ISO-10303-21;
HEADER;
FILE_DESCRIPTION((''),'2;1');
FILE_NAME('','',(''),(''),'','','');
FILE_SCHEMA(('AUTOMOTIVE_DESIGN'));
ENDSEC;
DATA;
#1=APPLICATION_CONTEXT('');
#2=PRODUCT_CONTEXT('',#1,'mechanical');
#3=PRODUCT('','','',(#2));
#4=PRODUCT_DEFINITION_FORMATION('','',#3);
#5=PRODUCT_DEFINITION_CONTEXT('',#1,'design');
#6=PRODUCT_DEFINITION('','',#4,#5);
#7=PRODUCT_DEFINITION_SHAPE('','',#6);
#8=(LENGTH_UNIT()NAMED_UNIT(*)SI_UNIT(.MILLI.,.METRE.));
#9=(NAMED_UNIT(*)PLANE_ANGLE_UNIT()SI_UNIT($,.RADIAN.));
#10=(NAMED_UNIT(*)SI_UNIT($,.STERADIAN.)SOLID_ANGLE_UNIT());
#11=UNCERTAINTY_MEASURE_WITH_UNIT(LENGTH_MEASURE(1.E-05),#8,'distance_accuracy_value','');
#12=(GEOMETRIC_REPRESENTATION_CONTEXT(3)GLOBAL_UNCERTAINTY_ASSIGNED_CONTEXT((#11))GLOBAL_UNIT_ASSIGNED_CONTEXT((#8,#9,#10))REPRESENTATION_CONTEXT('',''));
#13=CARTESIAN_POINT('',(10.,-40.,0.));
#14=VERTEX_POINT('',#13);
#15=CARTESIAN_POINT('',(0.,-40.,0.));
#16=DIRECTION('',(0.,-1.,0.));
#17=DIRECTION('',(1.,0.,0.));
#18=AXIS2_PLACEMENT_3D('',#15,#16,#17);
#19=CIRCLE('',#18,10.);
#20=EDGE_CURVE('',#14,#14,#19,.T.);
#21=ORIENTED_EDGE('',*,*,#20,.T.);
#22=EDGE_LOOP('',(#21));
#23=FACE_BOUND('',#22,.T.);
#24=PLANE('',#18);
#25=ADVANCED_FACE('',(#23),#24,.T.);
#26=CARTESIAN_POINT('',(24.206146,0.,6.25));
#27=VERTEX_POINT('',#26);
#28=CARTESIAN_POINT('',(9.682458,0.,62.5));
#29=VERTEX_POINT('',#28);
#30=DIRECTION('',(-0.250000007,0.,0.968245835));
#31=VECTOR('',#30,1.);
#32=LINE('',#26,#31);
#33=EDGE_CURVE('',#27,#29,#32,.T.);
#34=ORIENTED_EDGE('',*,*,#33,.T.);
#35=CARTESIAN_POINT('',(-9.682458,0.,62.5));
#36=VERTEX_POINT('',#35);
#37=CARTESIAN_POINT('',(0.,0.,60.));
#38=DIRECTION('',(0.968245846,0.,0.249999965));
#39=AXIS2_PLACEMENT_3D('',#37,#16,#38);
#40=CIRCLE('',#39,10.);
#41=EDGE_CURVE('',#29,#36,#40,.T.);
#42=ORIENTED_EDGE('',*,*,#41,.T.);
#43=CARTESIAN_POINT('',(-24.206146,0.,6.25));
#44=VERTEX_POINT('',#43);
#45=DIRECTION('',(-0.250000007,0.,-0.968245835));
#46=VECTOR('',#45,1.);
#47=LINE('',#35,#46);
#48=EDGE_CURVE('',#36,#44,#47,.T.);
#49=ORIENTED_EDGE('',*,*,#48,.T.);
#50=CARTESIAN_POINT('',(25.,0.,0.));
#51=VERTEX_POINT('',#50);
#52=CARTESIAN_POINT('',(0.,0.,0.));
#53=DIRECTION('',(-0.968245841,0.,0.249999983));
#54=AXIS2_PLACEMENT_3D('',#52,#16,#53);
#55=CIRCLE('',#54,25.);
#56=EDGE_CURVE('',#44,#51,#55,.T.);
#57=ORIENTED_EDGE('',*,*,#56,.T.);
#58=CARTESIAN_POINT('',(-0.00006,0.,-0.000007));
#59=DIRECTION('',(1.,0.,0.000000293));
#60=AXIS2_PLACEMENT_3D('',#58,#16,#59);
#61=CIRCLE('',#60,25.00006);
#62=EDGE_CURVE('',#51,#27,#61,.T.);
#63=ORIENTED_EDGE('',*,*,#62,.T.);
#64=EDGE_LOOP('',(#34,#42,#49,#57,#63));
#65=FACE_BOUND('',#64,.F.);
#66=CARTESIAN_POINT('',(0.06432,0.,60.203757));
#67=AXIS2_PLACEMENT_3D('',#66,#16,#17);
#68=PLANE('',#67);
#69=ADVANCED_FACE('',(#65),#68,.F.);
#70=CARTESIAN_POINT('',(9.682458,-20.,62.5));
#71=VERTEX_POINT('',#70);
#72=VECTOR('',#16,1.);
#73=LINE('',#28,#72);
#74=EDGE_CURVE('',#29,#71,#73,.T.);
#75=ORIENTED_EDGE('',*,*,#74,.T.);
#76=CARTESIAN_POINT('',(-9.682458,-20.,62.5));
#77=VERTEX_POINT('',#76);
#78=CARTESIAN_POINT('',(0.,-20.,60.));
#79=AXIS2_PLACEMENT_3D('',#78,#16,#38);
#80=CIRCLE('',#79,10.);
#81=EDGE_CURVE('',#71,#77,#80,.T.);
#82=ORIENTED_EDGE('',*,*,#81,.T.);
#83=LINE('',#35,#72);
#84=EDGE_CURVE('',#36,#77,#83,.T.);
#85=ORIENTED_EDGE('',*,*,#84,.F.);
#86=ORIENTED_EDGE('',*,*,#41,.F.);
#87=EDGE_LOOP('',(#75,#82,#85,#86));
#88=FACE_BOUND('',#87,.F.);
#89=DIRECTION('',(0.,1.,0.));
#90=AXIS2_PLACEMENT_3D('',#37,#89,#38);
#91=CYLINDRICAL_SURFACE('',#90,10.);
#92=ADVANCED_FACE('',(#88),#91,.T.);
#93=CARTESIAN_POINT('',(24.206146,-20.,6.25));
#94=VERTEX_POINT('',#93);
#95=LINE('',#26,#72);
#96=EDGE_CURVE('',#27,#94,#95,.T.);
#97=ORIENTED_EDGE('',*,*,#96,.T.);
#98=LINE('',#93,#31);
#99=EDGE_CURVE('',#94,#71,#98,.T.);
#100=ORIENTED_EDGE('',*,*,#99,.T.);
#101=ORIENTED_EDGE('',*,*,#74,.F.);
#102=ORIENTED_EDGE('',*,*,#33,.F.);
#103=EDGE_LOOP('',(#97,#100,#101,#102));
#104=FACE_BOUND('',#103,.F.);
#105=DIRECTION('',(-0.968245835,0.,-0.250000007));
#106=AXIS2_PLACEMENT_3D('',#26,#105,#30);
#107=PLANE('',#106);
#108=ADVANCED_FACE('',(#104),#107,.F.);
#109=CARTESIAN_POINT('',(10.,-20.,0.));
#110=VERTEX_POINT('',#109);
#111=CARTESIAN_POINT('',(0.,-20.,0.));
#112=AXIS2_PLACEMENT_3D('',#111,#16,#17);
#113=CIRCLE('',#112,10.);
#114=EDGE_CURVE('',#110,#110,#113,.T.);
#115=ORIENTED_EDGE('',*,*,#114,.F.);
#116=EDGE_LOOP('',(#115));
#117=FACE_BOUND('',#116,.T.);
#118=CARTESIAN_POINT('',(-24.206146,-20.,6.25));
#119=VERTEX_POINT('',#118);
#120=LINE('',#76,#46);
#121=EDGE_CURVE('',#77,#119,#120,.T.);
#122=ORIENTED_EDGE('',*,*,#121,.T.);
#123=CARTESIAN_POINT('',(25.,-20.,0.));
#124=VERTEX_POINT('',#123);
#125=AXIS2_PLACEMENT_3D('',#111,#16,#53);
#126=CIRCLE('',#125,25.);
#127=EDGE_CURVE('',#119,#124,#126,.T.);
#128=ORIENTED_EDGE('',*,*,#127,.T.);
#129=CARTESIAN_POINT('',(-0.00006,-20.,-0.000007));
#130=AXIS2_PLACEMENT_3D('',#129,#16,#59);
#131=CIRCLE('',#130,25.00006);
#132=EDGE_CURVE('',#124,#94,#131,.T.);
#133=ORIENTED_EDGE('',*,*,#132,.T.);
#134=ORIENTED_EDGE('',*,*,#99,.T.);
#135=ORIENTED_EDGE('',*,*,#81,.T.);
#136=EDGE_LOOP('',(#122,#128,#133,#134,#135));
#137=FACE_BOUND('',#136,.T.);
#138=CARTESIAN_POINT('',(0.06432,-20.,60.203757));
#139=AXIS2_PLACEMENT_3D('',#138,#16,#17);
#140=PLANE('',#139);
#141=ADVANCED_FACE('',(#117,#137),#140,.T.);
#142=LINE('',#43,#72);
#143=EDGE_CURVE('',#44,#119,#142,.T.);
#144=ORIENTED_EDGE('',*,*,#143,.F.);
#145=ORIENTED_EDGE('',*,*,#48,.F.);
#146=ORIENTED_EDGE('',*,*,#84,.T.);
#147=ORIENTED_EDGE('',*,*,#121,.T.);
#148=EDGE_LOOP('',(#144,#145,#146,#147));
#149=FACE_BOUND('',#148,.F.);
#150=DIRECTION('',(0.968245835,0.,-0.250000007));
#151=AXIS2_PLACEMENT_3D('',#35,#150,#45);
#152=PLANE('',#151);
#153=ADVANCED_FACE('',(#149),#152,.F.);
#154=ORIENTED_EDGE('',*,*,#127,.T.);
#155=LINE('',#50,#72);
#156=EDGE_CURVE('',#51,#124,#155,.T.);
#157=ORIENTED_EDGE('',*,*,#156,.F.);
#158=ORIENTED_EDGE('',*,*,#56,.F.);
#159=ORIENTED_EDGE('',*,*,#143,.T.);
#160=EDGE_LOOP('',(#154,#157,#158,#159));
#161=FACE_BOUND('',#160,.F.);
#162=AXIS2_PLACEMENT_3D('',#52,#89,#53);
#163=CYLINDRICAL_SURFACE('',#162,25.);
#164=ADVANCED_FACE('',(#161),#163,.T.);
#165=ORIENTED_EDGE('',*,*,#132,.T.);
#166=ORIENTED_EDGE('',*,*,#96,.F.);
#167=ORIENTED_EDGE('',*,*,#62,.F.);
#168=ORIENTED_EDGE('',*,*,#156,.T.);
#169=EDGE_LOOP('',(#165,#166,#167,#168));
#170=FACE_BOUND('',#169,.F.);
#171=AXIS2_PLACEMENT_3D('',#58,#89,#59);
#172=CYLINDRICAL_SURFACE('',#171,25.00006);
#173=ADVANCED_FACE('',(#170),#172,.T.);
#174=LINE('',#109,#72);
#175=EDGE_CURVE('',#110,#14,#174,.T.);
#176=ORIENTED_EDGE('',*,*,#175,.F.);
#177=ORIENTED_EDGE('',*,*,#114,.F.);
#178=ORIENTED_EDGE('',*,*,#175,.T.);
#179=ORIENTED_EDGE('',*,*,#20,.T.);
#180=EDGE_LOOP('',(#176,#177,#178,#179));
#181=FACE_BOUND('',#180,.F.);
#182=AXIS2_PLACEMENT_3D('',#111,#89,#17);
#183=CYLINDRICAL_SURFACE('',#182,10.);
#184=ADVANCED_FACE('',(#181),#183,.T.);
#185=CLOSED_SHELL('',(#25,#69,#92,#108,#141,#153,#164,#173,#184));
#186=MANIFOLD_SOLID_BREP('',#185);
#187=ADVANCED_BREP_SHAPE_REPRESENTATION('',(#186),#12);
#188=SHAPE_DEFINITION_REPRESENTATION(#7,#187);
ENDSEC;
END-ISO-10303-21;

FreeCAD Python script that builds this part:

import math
import FreeCAD as App
import Part
import Sketcher
from FreeCAD import Vector
Q = App.Units.Quantity

doc = App.newDocument("Part")
params = doc.addObject("Spreadsheet::Sheet", "Params")
for row, (alias, value) in enumerate([
    ("sketch1_radius", "10 mm"),
    ("sketch1_radius2", "25 mm"),
    ("pad1_length", "20 mm"),
    ("sketch2_diameter", "20 mm"),
    ("pad2_length", "20 mm"),
], start=1):
    params.set(f"A{row}", alias)
    params.set(f"B{row}", "=" + value)
    params.setAlias(f"B{row}", alias)

body = doc.addObject("PartDesign::Body", "Body")

# Sketch on XZ plane
sketch1 = body.newObject("Sketcher::SketchObject", "Sketch")
sketch1.AttachmentSupport = (doc.getObject("XZ_Plane"), [""])
sketch1.MapMode = "FlatFace"
sketch1.addGeometry(Part.ArcOfCircle(Part.Circle(Vector(0, 60, 0), Vector(0, 0, 1), 10), math.radians(14.47751), math.radians(165.52249)), False)
sketch1.addGeometry(Part.LineSegment(Vector(-9.682458, 62.5, 0), Vector(-24.206146, 6.25, 0)), False)
sketch1.addGeometry(Part.ArcOfCircle(Part.Circle(Vector(0, 0, 0), Vector(0, 0, 1), 25), math.radians(165.522489), math.radians(359.999999)), False)
sketch1.addGeometry(Part.ArcOfCircle(Part.Circle(Vector(-0.00006, -0.000007, 0), Vector(0, 0, 1), 25.00006), math.radians(0.000017), math.radians(14.477494)), False)
sketch1.addGeometry(Part.LineSegment(Vector(24.206146, 6.25, 0), Vector(9.682458, 62.5, 0)), False)
sketch1.addConstraint(Sketcher.Constraint("Coincident", 0, 2, 1, 1))
sketch1.addConstraint(Sketcher.Constraint("Coincident", 1, 2, 2, 1))
sketch1.addConstraint(Sketcher.Constraint("Coincident", 2, 2, 3, 1))
sketch1.addConstraint(Sketcher.Constraint("Coincident", 3, 2, 4, 1))
sketch1.addConstraint(Sketcher.Constraint("Coincident", 4, 2, 0, 1))
sketch1.addConstraint(Sketcher.Constraint("Coincident", 2, 3, -1, 1))
sketch1.addConstraint(Sketcher.Constraint("PointOnObject", 0, 3, -2))
sketch1.addConstraint(Sketcher.Constraint("PointOnObject", 2, 2, -1))
sketch1.addConstraint(Sketcher.Constraint("Radius", 0, Q("10 mm")))
sketch1.addConstraint(Sketcher.Constraint("Radius", 2, Q("25 mm")))
sketch1.addConstraint(Sketcher.Constraint("DistanceY", -1, 1, 0, 3, Q("60 mm")))
sketch1.addConstraint(Sketcher.Constraint("DistanceY", -1, 1, 0, 2, Q("62.5 mm")))
sketch1.addConstraint(Sketcher.Constraint("DistanceY", -1, 1, 4, 2, Q("62.5 mm")))
sketch1.addConstraint(Sketcher.Constraint("DistanceY", -1, 1, 1, 2, Q("6.25 mm")))
sketch1.addConstraint(Sketcher.Constraint("DistanceY", -1, 1, 3, 2, Q("6.25 mm")))
sketch1.addConstraint(Sketcher.Constraint("Radius", 3, Q("25.00006 mm")))
sketch1.addConstraint(Sketcher.Constraint("Distance", 4, Q("58.09475 mm")))
sketch1.setExpression("Constraints[8]", "Params.sketch1_radius")
sketch1.setExpression("Constraints[9]", "Params.sketch1_radius2")
pad1 = body.newObject("PartDesign::Pad", "Pad")
pad1.Profile = sketch1
pad1.setExpression("Length", "Params.pad1_length")

# Sketch on XZ plane
sketch2 = body.newObject("Sketcher::SketchObject", "Sketch001")
sketch2.AttachmentSupport = (doc.getObject("XZ_Plane"), [""])
sketch2.MapMode = "FlatFace"
sketch2.AttachmentOffset = App.Placement(Vector(0, 0, 20), App.Rotation())
sketch2.addGeometry(Part.Circle(Vector(0, 0, 0), Vector(0, 0, 1), 10), False)
sketch2.addConstraint(Sketcher.Constraint("Coincident", 0, 3, -1, 1))
sketch2.addConstraint(Sketcher.Constraint("Diameter", 0, Q("20 mm")))
sketch2.setExpression("Constraints[1]", "Params.sketch2_diameter")
pad2 = body.newObject("PartDesign::Pad", "Pad001")
pad2.Profile = sketch2
pad2.setExpression("Length", "Params.pad2_length")

doc.recompute()
